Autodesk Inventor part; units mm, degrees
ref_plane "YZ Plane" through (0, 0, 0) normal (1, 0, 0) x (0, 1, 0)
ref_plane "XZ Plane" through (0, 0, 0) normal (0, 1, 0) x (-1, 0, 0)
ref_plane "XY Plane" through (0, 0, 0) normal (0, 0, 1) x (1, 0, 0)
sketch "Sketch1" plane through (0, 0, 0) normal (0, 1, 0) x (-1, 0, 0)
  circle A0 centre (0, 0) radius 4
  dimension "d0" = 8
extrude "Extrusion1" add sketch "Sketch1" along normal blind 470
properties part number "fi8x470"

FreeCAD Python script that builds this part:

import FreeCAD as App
import Part
import Sketcher
from FreeCAD import Vector
Q = App.Units.Quantity

doc = App.newDocument("Part")
params = doc.addObject("Spreadsheet::Sheet", "Params")
for row, (alias, value) in enumerate([
    ("sketch1_diameter", "8 mm"),
    ("pad1_length", "470 mm"),
], start=1):
    params.set(f"A{row}", alias)
    params.set(f"B{row}", "=" + value)
    params.setAlias(f"B{row}", alias)

body = doc.addObject("PartDesign::Body", "Body")

# Sketch on XZ plane
sketch1 = doc.addObject("Sketcher::SketchObject", "Sketch")
body.addObject(sketch1)
sketch1.AttachmentSupport = (doc.XZ_Plane, [""])
sketch1.MapMode = "FlatFace"
sketch1.addGeometry(Part.Circle(Vector(0, 0, 0), Vector(0, 0, 1), 4), False)
sketch1.addConstraint([
    Sketcher.Constraint("Coincident", 0, 3, -1, 1),
    Sketcher.Constraint("Diameter", 0, Q("8 mm")),
])
sketch1.setExpression("Constraints[1]", "Params.sketch1_diameter")
pad1 = doc.addObject("PartDesign::Pad", "Pad")
body.addObject(pad1)
pad1.Profile = sketch1
pad1.setExpression("Length", "Params.pad1_length")
pad1.Reversed = True

doc.recompute()
